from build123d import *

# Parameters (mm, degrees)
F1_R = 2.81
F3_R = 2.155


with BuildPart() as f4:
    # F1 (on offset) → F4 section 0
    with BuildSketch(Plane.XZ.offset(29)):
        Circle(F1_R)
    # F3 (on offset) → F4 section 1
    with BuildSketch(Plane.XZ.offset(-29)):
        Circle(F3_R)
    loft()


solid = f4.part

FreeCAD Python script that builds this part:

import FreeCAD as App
import Part
import Sketcher
Q = App.Units.Quantity

doc = App.newDocument("Part")
body = doc.addObject("PartDesign::Body", "Body")

sketch1 = body.newObject("Sketcher::SketchObject", "Sketch")
sketch1.AttachmentSupport = (doc.getObject("XZ_Plane"), [""])
sketch1.MapMode = "FlatFace"
sketch1.AttachmentOffset = App.Placement(App.Vector(0, 0, 29), App.Rotation())
sketch1.addGeometry(Part.Circle(App.Vector(0, 0, 0), App.Vector(0, 0, 1), 2.8), False)
sketch1.addConstraint(Sketcher.Constraint("Coincident", 0, 3, -1, 1))
sketch1.addConstraint(Sketcher.Constraint("Diameter", 0, Q("5.62 mm")))

sketch2 = body.newObject("Sketcher::SketchObject", "Sketch001")
sketch2.AttachmentSupport = (doc.getObject("XZ_Plane"), [""])
sketch2.MapMode = "FlatFace"
sketch2.AttachmentOffset = App.Placement(App.Vector(0, 0, -29), App.Rotation())
sketch2.addGeometry(Part.Circle(App.Vector(0, 0, 0), App.Vector(0, 0, 1), 2.2), False)
sketch2.addConstraint(Sketcher.Constraint("Coincident", 0, 3, -1, 1))
sketch2.addConstraint(Sketcher.Constraint("Diameter", 0, Q("4.31 mm")))

additiveloft = body.newObject("PartDesign::AdditiveLoft", "AdditiveLoft")
additiveloft.Profile = sketch1
additiveloft.Sections = [sketch2]

doc.recompute()
